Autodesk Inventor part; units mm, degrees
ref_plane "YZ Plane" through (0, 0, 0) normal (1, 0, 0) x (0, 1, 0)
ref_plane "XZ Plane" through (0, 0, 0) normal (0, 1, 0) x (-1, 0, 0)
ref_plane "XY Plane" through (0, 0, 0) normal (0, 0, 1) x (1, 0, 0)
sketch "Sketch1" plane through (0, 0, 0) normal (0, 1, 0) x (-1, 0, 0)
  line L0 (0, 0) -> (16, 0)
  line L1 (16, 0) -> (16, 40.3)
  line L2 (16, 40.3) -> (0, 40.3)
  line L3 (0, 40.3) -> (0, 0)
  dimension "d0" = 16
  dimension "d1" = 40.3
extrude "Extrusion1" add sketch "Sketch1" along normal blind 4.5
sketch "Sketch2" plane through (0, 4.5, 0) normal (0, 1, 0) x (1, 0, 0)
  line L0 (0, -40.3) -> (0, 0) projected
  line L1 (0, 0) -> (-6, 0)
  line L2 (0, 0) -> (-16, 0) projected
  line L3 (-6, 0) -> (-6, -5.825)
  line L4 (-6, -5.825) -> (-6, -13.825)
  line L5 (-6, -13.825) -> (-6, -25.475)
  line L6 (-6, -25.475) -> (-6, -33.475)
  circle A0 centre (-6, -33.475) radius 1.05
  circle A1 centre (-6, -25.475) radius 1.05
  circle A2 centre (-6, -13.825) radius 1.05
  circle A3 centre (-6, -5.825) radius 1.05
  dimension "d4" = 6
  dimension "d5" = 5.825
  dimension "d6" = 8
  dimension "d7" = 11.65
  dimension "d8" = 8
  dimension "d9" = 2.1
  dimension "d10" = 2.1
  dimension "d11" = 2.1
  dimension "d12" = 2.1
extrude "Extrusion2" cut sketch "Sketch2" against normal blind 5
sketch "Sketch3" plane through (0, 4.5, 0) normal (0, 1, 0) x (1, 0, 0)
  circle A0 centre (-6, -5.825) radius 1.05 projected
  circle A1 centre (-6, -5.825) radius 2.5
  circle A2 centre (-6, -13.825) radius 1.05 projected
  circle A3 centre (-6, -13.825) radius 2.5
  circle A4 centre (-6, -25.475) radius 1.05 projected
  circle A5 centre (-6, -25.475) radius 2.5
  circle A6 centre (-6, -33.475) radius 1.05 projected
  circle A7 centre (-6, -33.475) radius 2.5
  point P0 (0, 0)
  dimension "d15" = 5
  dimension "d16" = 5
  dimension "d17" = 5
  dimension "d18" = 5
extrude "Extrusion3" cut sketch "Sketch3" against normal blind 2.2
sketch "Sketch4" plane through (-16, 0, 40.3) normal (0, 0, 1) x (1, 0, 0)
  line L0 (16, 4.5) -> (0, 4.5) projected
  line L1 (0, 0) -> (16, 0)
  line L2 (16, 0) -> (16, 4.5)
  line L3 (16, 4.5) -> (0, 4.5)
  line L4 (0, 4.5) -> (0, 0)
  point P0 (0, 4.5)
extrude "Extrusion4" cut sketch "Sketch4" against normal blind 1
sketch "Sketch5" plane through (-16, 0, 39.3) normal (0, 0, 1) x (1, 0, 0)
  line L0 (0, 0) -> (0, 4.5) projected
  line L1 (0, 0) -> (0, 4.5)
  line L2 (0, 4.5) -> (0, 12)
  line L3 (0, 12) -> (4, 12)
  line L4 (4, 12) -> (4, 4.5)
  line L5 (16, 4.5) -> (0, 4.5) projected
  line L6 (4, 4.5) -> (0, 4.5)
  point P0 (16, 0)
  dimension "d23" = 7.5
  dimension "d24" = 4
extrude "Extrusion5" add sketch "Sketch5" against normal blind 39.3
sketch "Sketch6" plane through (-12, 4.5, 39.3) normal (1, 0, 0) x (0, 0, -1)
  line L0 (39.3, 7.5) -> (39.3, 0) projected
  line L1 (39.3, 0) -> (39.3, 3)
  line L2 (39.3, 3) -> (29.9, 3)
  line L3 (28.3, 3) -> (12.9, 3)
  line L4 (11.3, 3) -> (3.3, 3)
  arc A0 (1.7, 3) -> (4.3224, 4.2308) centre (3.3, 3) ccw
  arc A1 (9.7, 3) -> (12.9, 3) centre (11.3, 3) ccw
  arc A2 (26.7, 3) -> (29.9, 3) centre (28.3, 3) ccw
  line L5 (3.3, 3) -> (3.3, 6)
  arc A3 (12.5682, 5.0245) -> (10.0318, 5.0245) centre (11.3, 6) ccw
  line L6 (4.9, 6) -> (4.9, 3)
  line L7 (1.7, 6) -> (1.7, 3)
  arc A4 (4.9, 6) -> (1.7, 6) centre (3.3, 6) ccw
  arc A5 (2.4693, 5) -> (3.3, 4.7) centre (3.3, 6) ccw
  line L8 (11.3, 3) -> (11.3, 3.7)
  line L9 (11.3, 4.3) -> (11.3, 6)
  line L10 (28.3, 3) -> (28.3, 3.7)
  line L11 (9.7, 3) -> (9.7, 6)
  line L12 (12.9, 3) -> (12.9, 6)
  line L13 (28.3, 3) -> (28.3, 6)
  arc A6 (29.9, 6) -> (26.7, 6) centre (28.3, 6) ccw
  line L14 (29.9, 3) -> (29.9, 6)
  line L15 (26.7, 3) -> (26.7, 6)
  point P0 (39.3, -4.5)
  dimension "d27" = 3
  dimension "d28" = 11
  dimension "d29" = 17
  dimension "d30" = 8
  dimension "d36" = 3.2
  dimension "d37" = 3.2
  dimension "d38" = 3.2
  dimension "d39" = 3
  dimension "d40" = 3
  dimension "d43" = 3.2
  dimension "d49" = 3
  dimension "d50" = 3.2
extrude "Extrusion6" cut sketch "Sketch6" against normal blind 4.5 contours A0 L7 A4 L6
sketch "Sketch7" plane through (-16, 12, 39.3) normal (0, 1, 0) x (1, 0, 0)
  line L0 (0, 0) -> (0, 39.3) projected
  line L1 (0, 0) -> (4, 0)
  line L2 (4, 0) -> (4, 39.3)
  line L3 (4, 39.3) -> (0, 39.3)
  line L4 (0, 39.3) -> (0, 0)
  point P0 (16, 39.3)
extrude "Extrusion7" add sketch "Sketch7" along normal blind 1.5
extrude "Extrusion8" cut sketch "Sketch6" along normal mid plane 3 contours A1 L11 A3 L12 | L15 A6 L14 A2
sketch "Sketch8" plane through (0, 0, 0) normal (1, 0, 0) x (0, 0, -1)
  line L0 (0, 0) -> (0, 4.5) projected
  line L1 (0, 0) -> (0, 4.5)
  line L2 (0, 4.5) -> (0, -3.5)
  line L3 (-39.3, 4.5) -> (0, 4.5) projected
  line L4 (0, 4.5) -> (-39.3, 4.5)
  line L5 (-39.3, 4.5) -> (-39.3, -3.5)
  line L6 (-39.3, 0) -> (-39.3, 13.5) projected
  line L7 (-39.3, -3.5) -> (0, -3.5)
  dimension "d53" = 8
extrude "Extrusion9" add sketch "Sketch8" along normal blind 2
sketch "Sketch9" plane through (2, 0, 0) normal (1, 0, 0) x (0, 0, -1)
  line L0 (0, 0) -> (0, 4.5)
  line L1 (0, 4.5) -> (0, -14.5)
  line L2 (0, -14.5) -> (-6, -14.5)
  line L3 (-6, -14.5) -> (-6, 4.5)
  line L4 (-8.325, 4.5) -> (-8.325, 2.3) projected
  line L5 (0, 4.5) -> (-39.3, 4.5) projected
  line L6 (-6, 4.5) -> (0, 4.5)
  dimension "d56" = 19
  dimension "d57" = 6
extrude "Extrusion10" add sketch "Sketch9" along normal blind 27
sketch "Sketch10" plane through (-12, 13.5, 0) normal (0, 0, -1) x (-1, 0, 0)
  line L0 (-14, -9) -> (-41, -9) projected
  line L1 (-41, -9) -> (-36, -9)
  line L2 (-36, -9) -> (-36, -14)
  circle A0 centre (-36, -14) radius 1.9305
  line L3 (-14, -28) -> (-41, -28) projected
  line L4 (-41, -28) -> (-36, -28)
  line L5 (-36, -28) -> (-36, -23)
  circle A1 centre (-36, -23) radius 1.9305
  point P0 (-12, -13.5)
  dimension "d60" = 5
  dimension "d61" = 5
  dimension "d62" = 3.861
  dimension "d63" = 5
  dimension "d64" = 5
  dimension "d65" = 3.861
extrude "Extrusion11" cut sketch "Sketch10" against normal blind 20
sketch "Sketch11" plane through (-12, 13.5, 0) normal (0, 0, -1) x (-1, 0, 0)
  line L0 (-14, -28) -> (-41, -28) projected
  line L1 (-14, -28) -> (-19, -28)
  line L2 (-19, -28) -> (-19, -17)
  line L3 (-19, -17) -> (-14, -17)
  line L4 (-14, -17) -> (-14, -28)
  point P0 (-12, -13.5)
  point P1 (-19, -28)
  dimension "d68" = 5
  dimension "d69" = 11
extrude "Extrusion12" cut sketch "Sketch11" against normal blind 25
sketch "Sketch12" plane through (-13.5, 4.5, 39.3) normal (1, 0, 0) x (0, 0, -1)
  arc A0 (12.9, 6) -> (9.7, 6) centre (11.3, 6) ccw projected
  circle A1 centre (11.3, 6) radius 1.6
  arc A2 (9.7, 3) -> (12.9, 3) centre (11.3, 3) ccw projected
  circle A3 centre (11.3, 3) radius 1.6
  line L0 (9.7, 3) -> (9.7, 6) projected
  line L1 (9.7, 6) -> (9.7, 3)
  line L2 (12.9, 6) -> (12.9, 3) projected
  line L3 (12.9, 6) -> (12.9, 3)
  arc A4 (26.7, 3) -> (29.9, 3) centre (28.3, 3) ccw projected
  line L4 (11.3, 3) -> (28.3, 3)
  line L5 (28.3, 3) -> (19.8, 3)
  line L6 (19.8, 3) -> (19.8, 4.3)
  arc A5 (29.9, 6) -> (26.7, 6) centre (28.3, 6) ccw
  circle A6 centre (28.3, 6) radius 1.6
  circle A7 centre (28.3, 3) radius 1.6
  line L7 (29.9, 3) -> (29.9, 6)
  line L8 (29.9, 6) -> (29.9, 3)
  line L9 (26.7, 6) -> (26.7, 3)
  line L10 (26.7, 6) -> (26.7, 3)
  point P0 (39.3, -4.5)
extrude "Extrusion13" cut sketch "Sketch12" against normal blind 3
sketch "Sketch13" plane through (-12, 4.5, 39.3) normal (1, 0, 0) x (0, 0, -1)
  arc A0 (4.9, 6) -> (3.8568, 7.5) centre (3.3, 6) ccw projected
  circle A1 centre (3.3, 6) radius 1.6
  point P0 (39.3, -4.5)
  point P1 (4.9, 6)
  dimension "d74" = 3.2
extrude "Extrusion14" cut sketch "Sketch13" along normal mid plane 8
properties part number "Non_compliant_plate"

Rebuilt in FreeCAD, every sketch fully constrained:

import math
import FreeCAD as App
import Part
import Sketcher

V = App.Vector
Q = App.Units.Quantity


def add_polygon(sketch, points):
    """Adds a closed chain of lines whose ends are joined by coincident constraints."""
    first, n = sketch.GeometryCount, len(points)
    for a, b in zip(points, points[1:] + points[:1]):
        sketch.addGeometry(Part.LineSegment(App.Vector(*a, 0), App.Vector(*b, 0)), False)
    for i in range(n):
        sketch.addConstraint(Sketcher.Constraint("Coincident", first + i, 2, first + (i + 1) % n, 1))

doc = App.newDocument("Part")
params = doc.addObject("Spreadsheet::Sheet", "Params")
for row, (alias, value) in enumerate([
    ("sketch1_width", "16 mm"),
    ("sketch1_height", "40.3 mm"),
    ("pad1_length", "4.5 mm"),
    ("sketch2_diameter", "2.1 mm"),
    ("pocket1_length", "5 mm"),
    ("sketch3_diameter", "5 mm"),
    ("sketch3_diameter2", "2.1 mm"),
    ("pocket2_length", "2.2 mm"),
    ("sketch4_width", "16 mm"),
    ("sketch4_height", "4.5 mm"),
    ("pocket3_length", "1 mm"),
    ("sketch5_width", "4 mm"),
    ("sketch5_height", "7.5 mm"),
    ("pad2_length", "39.3 mm"),
    ("sketch6_radius", "1.6 mm"),
    ("sketch6_width", "3 mm"),
    ("pocket4_length", "4.5 mm"),
    ("sketch7_width", "4 mm"),
    ("sketch7_height", "39.3 mm"),
    ("pad3_length", "1.5 mm"),
    ("sketch8_radius", "1.6 mm"),
    ("sketch8_width", "3 mm"),
    ("pocket5_length", "3 mm"),
    ("sketch9_width", "8 mm"),
    ("sketch9_height", "39.3 mm"),
    ("pad4_length", "2 mm"),
    ("sketch10_width", "19 mm"),
    ("sketch10_height", "6 mm"),
    ("pad5_length", "27 mm"),
    ("pocket6_length", "20 mm"),
    ("sketch12_width", "5 mm"),
    ("sketch12_height", "11 mm"),
    ("pocket7_length", "25 mm"),
    ("sketch13_radius", "1.6 mm"),
    ("sketch13_width", "3 mm"),
    ("pocket8_length", "3 mm"),
    ("sketch14_radius", "1.6 mm"),
    ("pocket9_length", "8 mm"),
], start=1):
    params.set(f"A{row}", alias)
    params.set(f"B{row}", "=" + value)
    params.setAlias(f"B{row}", alias)

body = doc.addObject("PartDesign::Body", "Body")

# Sketch on XZ plane
sketch1 = body.newObject("Sketcher::SketchObject", "Sketch")
sketch1.AttachmentSupport = (doc.getObject("XZ_Plane"), [""])
sketch1.MapMode = "FlatFace"
add_polygon(sketch1, [(0, 40), (0, 0), (-16, 0), (-16, 40)])  # lines 0-3
sketch1.addConstraint([
    Sketcher.Constraint("Vertical", 0),
    Sketcher.Constraint("Horizontal", 1),
    Sketcher.Constraint("Vertical", 2),
    Sketcher.Constraint("Horizontal", 3),
    Sketcher.Constraint("Coincident", 0, 2, -1, 1),
    Sketcher.Constraint("DistanceX", 1, 2, 1, 1, Q("16 mm")),
    Sketcher.Constraint("DistanceY", 0, 2, 0, 1, Q("40.3 mm")),
])
sketch1.setExpression("Constraints[9]", "Params.sketch1_width")
sketch1.setExpression("Constraints[10]", "Params.sketch1_height")
pad1 = body.newObject("PartDesign::Pad", "Pad")
pad1.Profile = sketch1
pad1.setExpression("Length", "Params.pad1_length")
pad1.Reversed = True

# Sketch on XZ plane
sketch2 = body.newObject("Sketcher::SketchObject", "Sketch001")
sketch2.AttachmentSupport = (doc.getObject("XZ_Plane"), [""])
sketch2.MapMode = "FlatFace"
sketch2.AttachmentOffset = App.Placement(V(0, 0, -4.5), App.Rotation())
sketch2.addGeometry([
    Part.Circle(V(-6, 5.8, 0), V(0, 0, 1), 1.1),
    Part.Circle(V(-6, 33.5, 0), V(0, 0, 1), 1.1),
    Part.Circle(V(-6, 25.5, 0), V(0, 0, 1), 1.1),
    Part.Circle(V(-6, 13.8, 0), V(0, 0, 1), 1.1),
], False)
sketch2.addConstraint([
    Sketcher.Constraint("Equal", 0, 1),
    Sketcher.Constraint("Equal", 1, 2),
    Sketcher.Constraint("Equal", 2, 3),
    Sketcher.Constraint("Vertical", 0, 3, 1, 3),
    Sketcher.Constraint("Vertical", 1, 3, 2, 3),
    Sketcher.Constraint("Vertical", 2, 3, 3, 3),
    Sketcher.Constraint("Diameter", 0, Q("2.1 mm")),
    Sketcher.Constraint("DistanceX", 0, 3, -1, 1, Q("6 mm")),
    Sketcher.Constraint("DistanceY", 2, 3, 1, 3, Q("8 mm")),
    Sketcher.Constraint("DistanceY", 0, 3, 3, 3, Q("8 mm")),
    Sketcher.Constraint("DistanceY", 3, 3, 2, 3, Q("11.65 mm")),
    Sketcher.Constraint("DistanceY", -1, 1, 0, 3, Q("5.825 mm")),
])
sketch2.setExpression("Constraints[6]", "Params.sketch2_diameter")
pocket1 = body.newObject("PartDesign::Pocket", "Pocket")
pocket1.Profile = sketch2
pocket1.setExpression("Length", "Params.pocket1_length")
pocket1.Reversed = True

# Sketch on XZ plane
sketch3 = body.newObject("Sketcher::SketchObject", "Sketch002")
sketch3.AttachmentSupport = (doc.getObject("XZ_Plane"), [""])
sketch3.MapMode = "FlatFace"
sketch3.AttachmentOffset = App.Placement(V(0, 0, -4.5), App.Rotation())
sketch3.addGeometry([
    Part.Circle(V(-6, 5.8, 0), V(0, 0, 1), 2.5),  # 0
    Part.Circle(V(-6, 5.8, 0), V(0, 0, 1), 1.1),  # 1
    Part.Circle(V(-6, 13.8, 0), V(0, 0, 1), 2.5),  # 2
    Part.Circle(V(-6, 13.8, 0), V(0, 0, 1), 1.1),  # 3
    Part.Circle(V(-6, 25.5, 0), V(0, 0, 1), 2.5),  # 4
    Part.Circle(V(-6, 25.5, 0), V(0, 0, 1), 1.1),  # 5
    Part.Circle(V(-6, 33.5, 0), V(0, 0, 1), 2.5),  # 6
    Part.Circle(V(-6, 33.5, 0), V(0, 0, 1), 1.1),  # 7
], False)
sketch3.addConstraint([
    Sketcher.Constraint("Coincident", 1, 3, 0, 3),
    Sketcher.Constraint("Coincident", 3, 3, 2, 3),
    Sketcher.Constraint("Coincident", 5, 3, 4, 3),
    Sketcher.Constraint("Coincident", 7, 3, 6, 3),
    Sketcher.Constraint("Equal", 0, 2),
    Sketcher.Constraint("Equal", 1, 3),
    Sketcher.Constraint("Equal", 2, 4),
    Sketcher.Constraint("Equal", 3, 5),
    Sketcher.Constraint("Equal", 4, 6),
    Sketcher.Constraint("Equal", 5, 7),
    Sketcher.Constraint("Vertical", 1, 3, 2, 3),
    Sketcher.Constraint("Vertical", 3, 3, 4, 3),
    Sketcher.Constraint("Vertical", 5, 3, 6, 3),
    Sketcher.Constraint("Diameter", 0, Q("5 mm")),
    Sketcher.Constraint("Diameter", 1, Q("2.1 mm")),
    Sketcher.Constraint("DistanceX", 0, 3, -1, 1, Q("6 mm")),
    Sketcher.Constraint("DistanceY", 0, 3, 2, 3, Q("8 mm")),
    Sketcher.Constraint("DistanceY", 4, 3, 6, 3, Q("8 mm")),
    Sketcher.Constraint("DistanceY", 2, 3, 4, 3, Q("11.65 mm")),
    Sketcher.Constraint("DistanceY", -1, 1, 0, 3, Q("5.825 mm")),
])
sketch3.setExpression("Constraints[13]", "Params.sketch3_diameter")
sketch3.setExpression("Constraints[14]", "Params.sketch3_diameter2")
pocket2 = body.newObject("PartDesign::Pocket", "Pocket001")
pocket2.Profile = sketch3
pocket2.setExpression("Length", "Params.pocket2_length")
pocket2.Reversed = True

# Sketch on XY plane
sketch4 = body.newObject("Sketcher::SketchObject", "Sketch003")
sketch4.AttachmentSupport = (doc.getObject("XY_Plane"), [""])
sketch4.MapMode = "FlatFace"
sketch4.AttachmentOffset = App.Placement(V(0, 0, 40.3), App.Rotation())
add_polygon(sketch4, [(0, 0), (0, 4.5), (-16, 4.5), (-16, 0)])  # lines 0-3
sketch4.addConstraint([
    Sketcher.Constraint("Vertical", 0),
    Sketcher.Constraint("Horizontal", 1),
    Sketcher.Constraint("Vertical", 2),
    Sketcher.Constraint("Horizontal", 3),
    Sketcher.Constraint("Coincident", 3, 2, -1, 1),
    Sketcher.Constraint("DistanceX", 1, 2, 1, 1, Q("16 mm")),
    Sketcher.Constraint("DistanceY", 0, 1, 0, 2, Q("4.5 mm")),
])
sketch4.setExpression("Constraints[9]", "Params.sketch4_width")
sketch4.setExpression("Constraints[10]", "Params.sketch4_height")
pocket3 = body.newObject("PartDesign::Pocket", "Pocket002")
pocket3.Profile = sketch4
pocket3.setExpression("Length", "Params.pocket3_length")

# Sketch on XY plane
sketch5 = body.newObject("Sketcher::SketchObject", "Sketch004")
sketch5.AttachmentSupport = (doc.getObject("XY_Plane"), [""])
sketch5.MapMode = "FlatFace"
sketch5.AttachmentOffset = App.Placement(V(0, 0, 39.3), App.Rotation())
add_polygon(sketch5, [(-16, 12), (-16, 4.5), (-12, 4.5), (-12, 12)])  # lines 0-3
sketch5.addConstraint([
    Sketcher.Constraint("Vertical", 0),
    Sketcher.Constraint("Horizontal", 1),
    Sketcher.Constraint("Vertical", 2),
    Sketcher.Constraint("Horizontal", 3),
    Sketcher.Constraint("DistanceX", 1, 1, 1, 2, Q("4 mm")),
    Sketcher.Constraint("DistanceY", 0, 2, 0, 1, Q("7.5 mm")),
    Sketcher.Constraint("DistanceX", 0, 2, -1, 1, Q("16 mm")),
    Sketcher.Constraint("DistanceY", -1, 1, 2, 2, Q("12 mm")),
])
sketch5.setExpression("Constraints[8]", "Params.sketch5_width")
sketch5.setExpression("Constraints[9]", "Params.sketch5_height")
pad2 = body.newObject("PartDesign::Pad", "Pad001")
pad2.Profile = sketch5
pad2.setExpression("Length", "Params.pad2_length")
pad2.Reversed = True

# Sketch on YZ plane
sketch6 = body.newObject("Sketcher::SketchObject", "Sketch005")
sketch6.AttachmentSupport = (doc.getObject("YZ_Plane"), [""])
sketch6.MapMode = "FlatFace"
sketch6.AttachmentOffset = App.Placement(V(0, 0, -12), App.Rotation())
sketch6.addGeometry([
    Part.ArcOfCircle(Part.Circle(V(7.5, 36, 0), V(0, 0, 1), 1.6), math.radians(90), math.radians(270)),
    Part.LineSegment(V(7.5, 34.4, 0), V(10.5, 34.4, 0)),
    Part.ArcOfCircle(Part.Circle(V(10.5, 36, 0), V(0, 0, 1), 1.6), math.radians(-90), math.radians(90)),
    Part.LineSegment(V(10.5, 37.6, 0), V(7.5, 37.6, 0)),
], False)
sketch6.addConstraint([
    Sketcher.Constraint("Tangent", 0, 2, 1, 1),
    Sketcher.Constraint("Tangent", 1, 2, 2, 1),
    Sketcher.Constraint("Tangent", 2, 2, 3, 1),
    Sketcher.Constraint("Tangent", 3, 2, 0, 1),
    Sketcher.Constraint("Horizontal", 1),
    Sketcher.Constraint("Horizontal", 3),
    Sketcher.Constraint("Radius", 0, Q("1.6 mm")),
    Sketcher.Constraint("DistanceX", 1, 1, 1, 2, Q("3 mm")),
    Sketcher.Constraint("DistanceY", -1, 1, 0, 3, Q("36 mm")),
    Sketcher.Constraint("DistanceX", -1, 1, 0, 3, Q("7.5 mm")),
])
sketch6.setExpression("Constraints[6]", "Params.sketch6_radius")
sketch6.setExpression("Constraints[7]", "Params.sketch6_width")
pocket4 = body.newObject("PartDesign::Pocket", "Pocket003")
pocket4.Profile = sketch6
pocket4.setExpression("Length", "Params.pocket4_length")

# Sketch on XZ plane
sketch7 = body.newObject("Sketcher::SketchObject", "Sketch006")
sketch7.AttachmentSupport = (doc.getObject("XZ_Plane"), [""])
sketch7.MapMode = "FlatFace"
sketch7.AttachmentOffset = App.Placement(V(0, 0, -12), App.Rotation())
add_polygon(sketch7, [(-16, 0), (-16, 39.3), (-12, 39.3), (-12, 0)])  # lines 0-3
sketch7.addConstraint([
    Sketcher.Constraint("Vertical", 0),
    Sketcher.Constraint("Horizontal", 1),
    Sketcher.Constraint("Vertical", 2),
    Sketcher.Constraint("Horizontal", 3),
    Sketcher.Constraint("PointOnObject", 2, 2, -1),
    Sketcher.Constraint("DistanceX", 1, 1, 1, 2, Q("4 mm")),
    Sketcher.Constraint("DistanceY", 0, 1, 0, 2, Q("39.3 mm")),
    Sketcher.Constraint("DistanceX", 0, 2, -1, 1, Q("16 mm")),
])
sketch7.setExpression("Constraints[9]", "Params.sketch7_width")
sketch7.setExpression("Constraints[10]", "Params.sketch7_height")
pad3 = body.newObject("PartDesign::Pad", "Pad002")
pad3.Profile = sketch7
pad3.setExpression("Length", "Params.pad3_length")
pad3.Reversed = True

# Sketch on YZ plane
sketch8 = body.newObject("Sketcher::SketchObject", "Sketch007")
sketch8.AttachmentSupport = (doc.getObject("YZ_Plane"), [""])
sketch8.MapMode = "FlatFace"
sketch8.AttachmentOffset = App.Placement(V(0, 0, -12), App.Rotation())
sketch8.addGeometry([
    Part.ArcOfCircle(Part.Circle(V(7.5, 28, 0), V(0, 0, 1), 1.6), math.radians(90), math.radians(270)),  # 0
    Part.LineSegment(V(7.5, 26.4, 0), V(10.5, 26.4, 0)),  # 1
    Part.ArcOfCircle(Part.Circle(V(10.5, 28, 0), V(0, 0, 1), 1.6), math.radians(-90), math.radians(90)),  # 2
    Part.LineSegment(V(10.5, 29.6, 0), V(7.5, 29.6, 0)),  # 3
    Part.LineSegment(V(10.5, 12.6, 0), V(7.5, 12.6, 0)),  # 4
    Part.ArcOfCircle(Part.Circle(V(7.5, 11, 0), V(0, 0, 1), 1.6), math.radians(90), math.radians(270)),  # 5
    Part.LineSegment(V(7.5, 9.4, 0), V(10.5, 9.4, 0)),  # 6
    Part.ArcOfCircle(Part.Circle(V(10.5, 11, 0), V(0, 0, 1), 1.6), math.radians(-90), math.radians(90)),  # 7
], False)
sketch8.addConstraint([
    Sketcher.Constraint("Tangent", 0, 2, 1, 1),
    Sketcher.Constraint("Tangent", 1, 2, 2, 1),
    Sketcher.Constraint("Tangent", 2, 2, 3, 1),
    Sketcher.Constraint("Tangent", 3, 2, 0, 1),
    Sketcher.Constraint("Tangent", 4, 2, 5, 1),
    Sketcher.Constraint("Tangent", 5, 2, 6, 1),
    Sketcher.Constraint("Tangent", 6, 2, 7, 1),
    Sketcher.Constraint("Tangent", 7, 2, 4, 1),
    Sketcher.Constraint("Horizontal", 1),
    Sketcher.Constraint("Horizontal", 3),
    Sketcher.Constraint("Horizontal", 4),
    Sketcher.Constraint("Horizontal", 6),
    Sketcher.Constraint("Equal", 2, 5),
    Sketcher.Constraint("Vertical", 0, 3, 5, 3),
    Sketcher.Constraint("Vertical", 2, 3, 7, 3),
    Sketcher.Constraint("Radius", 0, Q("1.6 mm")),
    Sketcher.Constraint("DistanceX", 1, 1, 1, 2, Q("3 mm")),
    Sketcher.Constraint("DistanceY", -1, 1, 5, 3, Q("11 mm")),
    Sketcher.Constraint("DistanceY", 5, 3, 0, 3, Q("17 mm")),
    Sketcher.Constraint("DistanceX", -1, 1, 0, 3, Q("7.5 mm")),
])
sketch8.setExpression("Constraints[15]", "Params.sketch8_radius")
sketch8.setExpression("Constraints[16]", "Params.sketch8_width")
pocket5 = body.newObject("PartDesign::Pocket", "Pocket004")
pocket5.Profile = sketch8
pocket5.setExpression("Length", "Params.pocket5_length")
pocket5.Midplane = True

# Sketch on YZ plane
sketch9 = body.newObject("Sketcher::SketchObject", "Sketch008")
sketch9.AttachmentSupport = (doc.getObject("YZ_Plane"), [""])
sketch9.MapMode = "FlatFace"
add_polygon(sketch9, [(-4, 0), (4, 0), (4, 39), (-4, 39)])  # lines 0-3
sketch9.addConstraint([
    Sketcher.Constraint("Horizontal", 0),
    Sketcher.Constraint("Vertical", 1),
    Sketcher.Constraint("Horizontal", 2),
    Sketcher.Constraint("Vertical", 3),
    Sketcher.Constraint("PointOnObject", 0, 2, -1),
    Sketcher.Constraint("DistanceX", 0, 1, 0, 2, Q("8 mm")),
    Sketcher.Constraint("DistanceY", 1, 1, 1, 2, Q("39.3 mm")),
    Sketcher.Constraint("DistanceX", -1, 1, 0, 2, Q("4.5 mm")),
])
sketch9.setExpression("Constraints[9]", "Params.sketch9_width")
sketch9.setExpression("Constraints[10]", "Params.sketch9_height")
pad4 = body.newObject("PartDesign::Pad", "Pad003")
pad4.Profile = sketch9
pad4.setExpression("Length", "Params.pad4_length")

# Sketch on YZ plane
sketch10 = body.newObject("Sketcher::SketchObject", "Sketch009")
sketch10.AttachmentSupport = (doc.getObject("YZ_Plane"), [""])
sketch10.MapMode = "FlatFace"
sketch10.AttachmentOffset = App.Placement(V(0, 0, 2), App.Rotation())
add_polygon(sketch10, [(-14, 0), (4, 0), (4, 6), (-14, 6)])  # lines 0-3
sketch10.addConstraint([
    Sketcher.Constraint("Horizontal", 0),
    Sketcher.Constraint("Vertical", 1),
    Sketcher.Constraint("Horizontal", 2),
    Sketcher.Constraint("Vertical", 3),
    Sketcher.Constraint("PointOnObject", 0, 2, -1),
    Sketcher.Constraint("DistanceX", 0, 1, 0, 2, Q("19 mm")),
    Sketcher.Constraint("DistanceY", 1, 1, 1, 2, Q("6 mm")),
    Sketcher.Constraint("DistanceX", -1, 1, 0, 2, Q("4.5 mm")),
])
sketch10.setExpression("Constraints[9]", "Params.sketch10_width")
sketch10.setExpression("Constraints[10]", "Params.sketch10_height")
pad5 = body.newObject("PartDesign::Pad", "Pad004")
pad5.Profile = sketch10
pad5.setExpression("Length", "Params.pad5_length")

# Sketch on XY plane
sketch11 = body.newObject("Sketcher::SketchObject", "Sketch010")
sketch11.AttachmentSupport = (doc.getObject("XY_Plane"), [""])
sketch11.MapMode = "FlatFace"
sketch11.addGeometry([
    Part.Circle(V(24, -0.5, 0), V(0, 0, 1), 1.9),
    Part.Circle(V(24, -9.5, 0), V(0, 0, 1), 1.9),
], False)
sketch11.addConstraint([
    Sketcher.Constraint("Equal", 0, 1),
    Sketcher.Constraint("Vertical", 0, 3, 1, 3),
    Sketcher.Constraint("Diameter", 0, Q("3.861 mm")),
    Sketcher.Constraint("DistanceX", -1, 1, 0, 3, Q("24 mm")),
    Sketcher.Constraint("DistanceY", 1, 3, 0, 3, Q("9 mm")),
    Sketcher.Constraint("DistanceY", 0, 3, -1, 1, Q("0.5 mm")),
])
pocket6 = body.newObject("PartDesign::Pocket", "Pocket005")
pocket6.Profile = sketch11
pocket6.setExpression("Length", "Params.pocket6_length")
pocket6.Reversed = True

# Sketch on XY plane
sketch12 = body.newObject("Sketcher::SketchObject", "Sketch011")
sketch12.AttachmentSupport = (doc.getObject("XY_Plane"), [""])
sketch12.MapMode = "FlatFace"
add_polygon(sketch12, [(7, -14), (2, -14), (2, -4), (7, -4)])  # lines 0-3
sketch12.addConstraint([
    Sketcher.Constraint("Horizontal", 0),
    Sketcher.Constraint("Vertical", 1),
    Sketcher.Constraint("Horizontal", 2),
    Sketcher.Constraint("Vertical", 3),
    Sketcher.Constraint("DistanceX", 0, 2, 0, 1, Q("5 mm")),
    Sketcher.Constraint("DistanceY", 1, 1, 1, 2, Q("11 mm")),
    Sketcher.Constraint("DistanceX", -1, 1, 0, 2, Q("2 mm")),
    Sketcher.Constraint("DistanceY", 0, 2, -1, 1, Q("14.5 mm")),
])
sketch12.setExpression("Constraints[8]", "Params.sketch12_width")
sketch12.setExpression("Constraints[9]", "Params.sketch12_height")
pocket7 = body.newObject("PartDesign::Pocket", "Pocket006")
pocket7.Profile = sketch12
pocket7.setExpression("Length", "Params.pocket7_length")
pocket7.Reversed = True

# Sketch on YZ plane
sketch13 = body.newObject("Sketcher::SketchObject", "Sketch012")
sketch13.AttachmentSupport = (doc.getObject("YZ_Plane"), [""])
sketch13.MapMode = "FlatFace"
sketch13.AttachmentOffset = App.Placement(V(0, 0, -13.5), App.Rotation())
sketch13.addGeometry([
    Part.ArcOfCircle(Part.Circle(V(10.5, 28, 0), V(0, 0, 1), 1.6), math.radians(-90), math.radians(90)),  # 0
    Part.LineSegment(V(10.5, 29.6, 0), V(7.5, 29.6, 0)),  # 1
    Part.ArcOfCircle(Part.Circle(V(7.5, 28, 0), V(0, 0, 1), 1.6), math.radians(90), math.radians(270)),  # 2
    Part.LineSegment(V(7.5, 26.4, 0), V(10.5, 26.4, 0)),  # 3
    Part.LineSegment(V(10.5, 12.6, 0), V(7.5, 12.6, 0)),  # 4
    Part.ArcOfCircle(Part.Circle(V(7.5, 11, 0), V(0, 0, 1), 1.6), math.radians(90), math.radians(270)),  # 5
    Part.LineSegment(V(7.5, 9.4, 0), V(10.5, 9.4, 0)),  # 6
    Part.ArcOfCircle(Part.Circle(V(10.5, 11, 0), V(0, 0, 1), 1.6), math.radians(-90), math.radians(90)),  # 7
], False)
sketch13.addConstraint([
    Sketcher.Constraint("Tangent", 0, 2, 1, 1),
    Sketcher.Constraint("Tangent", 1, 2, 2, 1),
    Sketcher.Constraint("Tangent", 2, 2, 3, 1),
    Sketcher.Constraint("Tangent", 3, 2, 0, 1),
    Sketcher.Constraint("Tangent", 4, 2, 5, 1),
    Sketcher.Constraint("Tangent", 5, 2, 6, 1),
    Sketcher.Constraint("Tangent", 6, 2, 7, 1),
    Sketcher.Constraint("Tangent", 7, 2, 4, 1),
    Sketcher.Constraint("Horizontal", 1),
    Sketcher.Constraint("Horizontal", 3),
    Sketcher.Constraint("Horizontal", 4),
    Sketcher.Constraint("Horizontal", 6),
    Sketcher.Constraint("Equal", 2, 5),
    Sketcher.Constraint("Vertical", 2, 3, 5, 3),
    Sketcher.Constraint("Vertical", 0, 3, 7, 3),
    Sketcher.Constraint("Radius", 0, Q("1.6 mm")),
    Sketcher.Constraint("DistanceX", 1, 2, 1, 1, Q("3 mm")),
    Sketcher.Constraint("DistanceY", -1, 1, 0, 3, Q("28 mm")),
    Sketcher.Constraint("DistanceY", -1, 1, 5, 3, Q("11 mm")),
    Sketcher.Constraint("DistanceX", -1, 1, 0, 3, Q("10.5 mm")),
])
sketch13.setExpression("Constraints[15]", "Params.sketch13_radius")
sketch13.setExpression("Constraints[16]", "Params.sketch13_width")
pocket8 = body.newObject("PartDesign::Pocket", "Pocket007")
pocket8.Profile = sketch13
pocket8.setExpression("Length", "Params.pocket8_length")

# Sketch on YZ plane
sketch14 = body.newObject("Sketcher::SketchObject", "Sketch013")
sketch14.AttachmentSupport = (doc.getObject("YZ_Plane"), [""])
sketch14.MapMode = "FlatFace"
sketch14.AttachmentOffset = App.Placement(V(0, 0, -12), App.Rotation())
sketch14.addGeometry([
    Part.ArcOfCircle(Part.Circle(V(10.5, 36, 0), V(0, 0, 1), 1.6), math.radians(-20), math.radians(270)),
    Part.ArcOfCircle(Part.Circle(V(10.5, 36, 0), V(0, 0, 1), 1.6), math.radians(-90), math.radians(-20)),
], False)
sketch14.addConstraint([
    Sketcher.Constraint("Tangent", 0, 1, 1, 2),
    Sketcher.Constraint("Coincident", 1, 1, 0, 2),
    Sketcher.Constraint("Vertical", 0, 3, 1, 1),
    Sketcher.Constraint("Radius", 0, Q("1.6 mm")),
    Sketcher.Constraint("DistanceY", -1, 1, 0, 3, Q("36 mm")),
    Sketcher.Constraint("DistanceX", -1, 1, 0, 1, Q("12 mm")),
    Sketcher.Constraint("DistanceX", -1, 1, 0, 3, Q("10.5 mm")),
])
sketch14.setExpression("Constraints[3]", "Params.sketch14_radius")
pocket9 = body.newObject("PartDesign::Pocket", "Pocket008")
pocket9.Profile = sketch14
pocket9.setExpression("Length", "Params.pocket9_length")
pocket9.Midplane = True

doc.recompute()
